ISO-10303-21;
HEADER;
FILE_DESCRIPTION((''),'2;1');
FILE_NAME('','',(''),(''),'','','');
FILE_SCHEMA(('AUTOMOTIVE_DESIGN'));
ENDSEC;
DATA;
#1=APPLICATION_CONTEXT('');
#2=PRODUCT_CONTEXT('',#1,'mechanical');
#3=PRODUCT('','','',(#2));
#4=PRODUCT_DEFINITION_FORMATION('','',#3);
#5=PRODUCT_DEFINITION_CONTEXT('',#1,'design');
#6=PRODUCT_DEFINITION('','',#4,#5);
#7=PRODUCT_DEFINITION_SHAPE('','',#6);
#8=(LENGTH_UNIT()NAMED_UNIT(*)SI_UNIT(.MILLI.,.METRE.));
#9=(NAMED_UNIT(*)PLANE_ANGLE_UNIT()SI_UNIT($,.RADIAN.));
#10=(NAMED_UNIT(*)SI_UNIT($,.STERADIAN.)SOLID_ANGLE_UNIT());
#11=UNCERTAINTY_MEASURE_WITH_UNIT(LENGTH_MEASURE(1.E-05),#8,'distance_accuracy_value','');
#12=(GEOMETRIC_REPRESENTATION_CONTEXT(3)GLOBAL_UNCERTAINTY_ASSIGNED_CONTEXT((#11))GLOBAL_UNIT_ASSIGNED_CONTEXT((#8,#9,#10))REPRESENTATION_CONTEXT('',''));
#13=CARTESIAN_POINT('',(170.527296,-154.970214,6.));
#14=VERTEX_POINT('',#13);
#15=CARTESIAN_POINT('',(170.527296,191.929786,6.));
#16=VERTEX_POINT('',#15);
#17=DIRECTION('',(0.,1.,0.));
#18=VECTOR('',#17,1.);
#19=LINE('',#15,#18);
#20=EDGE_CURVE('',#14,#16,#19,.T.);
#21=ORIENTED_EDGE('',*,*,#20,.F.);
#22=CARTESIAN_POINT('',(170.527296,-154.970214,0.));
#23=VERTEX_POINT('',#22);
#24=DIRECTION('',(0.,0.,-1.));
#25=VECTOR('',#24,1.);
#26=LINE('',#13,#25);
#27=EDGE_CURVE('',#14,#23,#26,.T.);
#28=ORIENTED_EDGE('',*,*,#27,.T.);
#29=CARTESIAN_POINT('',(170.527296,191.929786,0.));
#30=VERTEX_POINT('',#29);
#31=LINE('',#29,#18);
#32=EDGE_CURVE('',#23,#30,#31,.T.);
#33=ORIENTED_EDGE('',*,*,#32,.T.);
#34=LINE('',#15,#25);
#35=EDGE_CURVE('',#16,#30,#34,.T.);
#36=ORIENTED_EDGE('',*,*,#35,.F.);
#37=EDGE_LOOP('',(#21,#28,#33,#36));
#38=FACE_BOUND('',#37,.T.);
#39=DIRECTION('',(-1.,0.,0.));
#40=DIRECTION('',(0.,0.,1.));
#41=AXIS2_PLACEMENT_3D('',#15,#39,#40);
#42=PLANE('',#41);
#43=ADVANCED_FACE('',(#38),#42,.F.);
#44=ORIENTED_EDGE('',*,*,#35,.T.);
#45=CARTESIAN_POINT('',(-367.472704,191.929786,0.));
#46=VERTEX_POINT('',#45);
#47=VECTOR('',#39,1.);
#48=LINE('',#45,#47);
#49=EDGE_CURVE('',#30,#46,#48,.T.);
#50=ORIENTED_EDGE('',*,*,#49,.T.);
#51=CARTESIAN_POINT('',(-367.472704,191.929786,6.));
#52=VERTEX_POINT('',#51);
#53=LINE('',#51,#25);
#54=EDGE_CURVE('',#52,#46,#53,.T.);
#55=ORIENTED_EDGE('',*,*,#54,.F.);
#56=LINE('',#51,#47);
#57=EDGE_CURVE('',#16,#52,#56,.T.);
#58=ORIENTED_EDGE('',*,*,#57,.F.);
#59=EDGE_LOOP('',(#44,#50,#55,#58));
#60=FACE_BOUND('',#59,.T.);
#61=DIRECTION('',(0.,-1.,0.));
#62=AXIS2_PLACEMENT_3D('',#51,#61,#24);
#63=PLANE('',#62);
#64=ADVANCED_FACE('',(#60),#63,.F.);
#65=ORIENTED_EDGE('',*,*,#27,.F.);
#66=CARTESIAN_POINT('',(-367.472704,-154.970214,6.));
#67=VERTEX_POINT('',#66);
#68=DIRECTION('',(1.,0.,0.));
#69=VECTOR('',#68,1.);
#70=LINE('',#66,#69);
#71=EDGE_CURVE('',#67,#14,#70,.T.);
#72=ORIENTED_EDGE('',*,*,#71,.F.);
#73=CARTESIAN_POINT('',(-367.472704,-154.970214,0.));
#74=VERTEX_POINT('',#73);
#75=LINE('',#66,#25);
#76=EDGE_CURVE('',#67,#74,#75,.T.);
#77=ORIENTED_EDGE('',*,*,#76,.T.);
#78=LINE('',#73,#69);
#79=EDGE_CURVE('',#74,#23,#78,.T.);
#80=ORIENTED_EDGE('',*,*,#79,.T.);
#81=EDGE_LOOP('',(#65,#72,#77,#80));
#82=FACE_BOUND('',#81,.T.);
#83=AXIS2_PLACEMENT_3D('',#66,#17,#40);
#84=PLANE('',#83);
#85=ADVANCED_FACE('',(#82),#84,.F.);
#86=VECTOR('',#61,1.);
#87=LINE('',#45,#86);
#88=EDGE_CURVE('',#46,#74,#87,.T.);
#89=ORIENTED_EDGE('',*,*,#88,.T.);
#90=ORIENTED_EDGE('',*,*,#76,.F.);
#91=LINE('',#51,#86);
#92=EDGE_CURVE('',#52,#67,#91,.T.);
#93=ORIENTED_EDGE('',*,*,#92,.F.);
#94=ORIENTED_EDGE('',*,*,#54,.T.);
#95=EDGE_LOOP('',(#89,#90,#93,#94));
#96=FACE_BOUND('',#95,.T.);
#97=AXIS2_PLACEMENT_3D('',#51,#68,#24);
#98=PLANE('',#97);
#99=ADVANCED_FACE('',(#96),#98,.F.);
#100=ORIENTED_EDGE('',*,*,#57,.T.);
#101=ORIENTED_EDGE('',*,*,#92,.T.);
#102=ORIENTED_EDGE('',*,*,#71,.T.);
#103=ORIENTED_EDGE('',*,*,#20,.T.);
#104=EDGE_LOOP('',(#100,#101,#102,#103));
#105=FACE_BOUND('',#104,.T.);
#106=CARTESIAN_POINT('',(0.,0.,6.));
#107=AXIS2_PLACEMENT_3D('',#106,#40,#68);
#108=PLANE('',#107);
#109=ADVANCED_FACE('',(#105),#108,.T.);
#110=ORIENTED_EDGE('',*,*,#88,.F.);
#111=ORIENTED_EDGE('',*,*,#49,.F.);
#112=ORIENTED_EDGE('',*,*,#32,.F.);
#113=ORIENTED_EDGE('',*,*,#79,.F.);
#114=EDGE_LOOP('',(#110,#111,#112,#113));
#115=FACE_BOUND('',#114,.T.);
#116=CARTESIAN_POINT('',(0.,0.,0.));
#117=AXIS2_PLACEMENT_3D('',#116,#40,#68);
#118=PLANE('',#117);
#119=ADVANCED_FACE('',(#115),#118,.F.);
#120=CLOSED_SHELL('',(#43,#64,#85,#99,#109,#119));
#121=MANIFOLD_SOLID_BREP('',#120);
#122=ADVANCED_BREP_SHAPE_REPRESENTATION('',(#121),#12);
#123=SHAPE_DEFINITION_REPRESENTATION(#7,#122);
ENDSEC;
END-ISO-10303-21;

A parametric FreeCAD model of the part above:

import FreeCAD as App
import Part
import Sketcher

V = App.Vector


def add_polygon(sketch, points):
    """Adds a closed chain of lines whose ends are joined by coincident constraints."""
    first, n = sketch.GeometryCount, len(points)
    for a, b in zip(points, points[1:] + points[:1]):
        sketch.addGeometry(Part.LineSegment(App.Vector(*a, 0), App.Vector(*b, 0)), False)
    for i in range(n):
        sketch.addConstraint(Sketcher.Constraint("Coincident", first + i, 2, first + (i + 1) % n, 1))

doc = App.newDocument("Part")
params = doc.addObject("Spreadsheet::Sheet", "Params")
for row, (alias, value) in enumerate([
    ("sketch1_width", "538 mm"),
    ("sketch1_height", "346.9 mm"),
    ("pad1_length", "6 mm"),
], start=1):
    params.set(f"A{row}", alias)
    params.set(f"B{row}", "=" + value)
    params.setAlias(f"B{row}", alias)

body = doc.addObject("PartDesign::Body", "Body")

# Sketch on XY plane
sketch1 = doc.addObject("Sketcher::SketchObject", "Sketch")
body.addObject(sketch1)
sketch1.AttachmentSupport = (doc.XY_Plane, [""])
sketch1.MapMode = "FlatFace"
add_polygon(sketch1, [(-367, 192), (-367, -155), (171, -155), (171, 192)])  # lines 0-3
sketch1.addConstraint([
    Sketcher.Constraint("Vertical", 0),
    Sketcher.Constraint("Horizontal", 1),
    Sketcher.Constraint("Vertical", 2),
    Sketcher.Constraint("Horizontal", 3),
    Sketcher.Constraint("DistanceX", 1, 1, 1, 2, 538.0),
    Sketcher.Constraint("DistanceY", 0, 2, 0, 1, 346.9),
    Sketcher.Constraint("DistanceX", 0, 2, -1, 1, 367.472704),
    Sketcher.Constraint("DistanceY", 0, 2, -1, 1, 154.970214),
])
sketch1.setExpression("Constraints[8]", "Params.sketch1_width")
sketch1.setExpression("Constraints[9]", "Params.sketch1_height")
pad1 = doc.addObject("PartDesign::Pad", "Pad")
body.addObject(pad1)
pad1.Profile = sketch1
pad1.setExpression("Length", "Params.pad1_length")

doc.recompute()
